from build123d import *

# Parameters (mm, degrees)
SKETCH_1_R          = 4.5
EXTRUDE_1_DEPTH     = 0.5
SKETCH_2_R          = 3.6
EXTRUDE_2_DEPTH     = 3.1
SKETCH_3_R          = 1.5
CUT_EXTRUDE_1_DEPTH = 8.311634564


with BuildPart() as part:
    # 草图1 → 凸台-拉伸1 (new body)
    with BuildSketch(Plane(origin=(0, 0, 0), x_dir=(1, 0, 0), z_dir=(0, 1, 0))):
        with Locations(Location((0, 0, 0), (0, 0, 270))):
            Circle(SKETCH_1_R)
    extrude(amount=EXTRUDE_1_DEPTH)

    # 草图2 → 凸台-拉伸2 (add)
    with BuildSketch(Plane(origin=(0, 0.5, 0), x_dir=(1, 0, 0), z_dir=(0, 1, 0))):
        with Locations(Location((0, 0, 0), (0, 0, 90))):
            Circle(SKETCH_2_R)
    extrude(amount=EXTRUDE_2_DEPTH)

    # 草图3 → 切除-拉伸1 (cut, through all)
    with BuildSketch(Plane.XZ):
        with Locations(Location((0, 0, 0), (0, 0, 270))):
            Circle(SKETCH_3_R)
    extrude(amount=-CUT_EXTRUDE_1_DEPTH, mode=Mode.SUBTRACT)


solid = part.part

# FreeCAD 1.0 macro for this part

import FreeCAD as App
import Part
import Sketcher
from FreeCAD import Vector
Q = App.Units.Quantity

doc = App.newDocument("Part")
body = doc.addObject("PartDesign::Body", "Body")

# Sketch on XZ plane
sketch1 = doc.addObject("Sketcher::SketchObject", "Sketch")
body.addObject(sketch1)
sketch1.AttachmentSupport = (doc.XZ_Plane, [""])
sketch1.MapMode = "FlatFace"
sketch1.addGeometry(Part.Circle(Vector(0, 0, 0), Vector(0, 0, 1), 4.5), False)
sketch1.addConstraint([
    Sketcher.Constraint("Coincident", 0, 3, -1, 1),
    Sketcher.Constraint("Diameter", 0, Q("9 mm")),
])
pad1 = doc.addObject("PartDesign::Pad", "Pad")
body.addObject(pad1)
pad1.Profile = sketch1
pad1.Length = 0.5
pad1.Reversed = True

# Sketch on XZ plane
sketch2 = doc.addObject("Sketcher::SketchObject", "Sketch001")
body.addObject(sketch2)
sketch2.AttachmentSupport = (doc.XZ_Plane, [""])
sketch2.MapMode = "FlatFace"
sketch2.AttachmentOffset = App.Placement(Vector(0, 0, -0.5), App.Rotation())
sketch2.addGeometry(Part.Circle(Vector(0, 0, 0), Vector(0, 0, 1), 3.6), False)
sketch2.addConstraint([
    Sketcher.Constraint("Coincident", 0, 3, -1, 1),
    Sketcher.Constraint("Diameter", 0, Q("7.2 mm")),
])
pad2 = doc.addObject("PartDesign::Pad", "Pad001")
body.addObject(pad2)
pad2.Profile = sketch2
pad2.Length = 3.1
pad2.Reversed = True

# Sketch on XZ plane
sketch3 = doc.addObject("Sketcher::SketchObject", "Sketch002")
body.addObject(sketch3)
sketch3.AttachmentSupport = (doc.XZ_Plane, [""])
sketch3.MapMode = "FlatFace"
sketch3.addGeometry(Part.Circle(Vector(0, 0, 0), Vector(0, 0, 1), 1.5), False)
sketch3.addConstraint([
    Sketcher.Constraint("Coincident", 0, 3, -1, 1),
    Sketcher.Constraint("Diameter", 0, Q("3 mm")),
])
pocket1 = doc.addObject("PartDesign::Pocket", "Pocket")
body.addObject(pocket1)
pocket1.Profile = sketch3
pocket1.Type = "ThroughAll"

doc.recompute()
